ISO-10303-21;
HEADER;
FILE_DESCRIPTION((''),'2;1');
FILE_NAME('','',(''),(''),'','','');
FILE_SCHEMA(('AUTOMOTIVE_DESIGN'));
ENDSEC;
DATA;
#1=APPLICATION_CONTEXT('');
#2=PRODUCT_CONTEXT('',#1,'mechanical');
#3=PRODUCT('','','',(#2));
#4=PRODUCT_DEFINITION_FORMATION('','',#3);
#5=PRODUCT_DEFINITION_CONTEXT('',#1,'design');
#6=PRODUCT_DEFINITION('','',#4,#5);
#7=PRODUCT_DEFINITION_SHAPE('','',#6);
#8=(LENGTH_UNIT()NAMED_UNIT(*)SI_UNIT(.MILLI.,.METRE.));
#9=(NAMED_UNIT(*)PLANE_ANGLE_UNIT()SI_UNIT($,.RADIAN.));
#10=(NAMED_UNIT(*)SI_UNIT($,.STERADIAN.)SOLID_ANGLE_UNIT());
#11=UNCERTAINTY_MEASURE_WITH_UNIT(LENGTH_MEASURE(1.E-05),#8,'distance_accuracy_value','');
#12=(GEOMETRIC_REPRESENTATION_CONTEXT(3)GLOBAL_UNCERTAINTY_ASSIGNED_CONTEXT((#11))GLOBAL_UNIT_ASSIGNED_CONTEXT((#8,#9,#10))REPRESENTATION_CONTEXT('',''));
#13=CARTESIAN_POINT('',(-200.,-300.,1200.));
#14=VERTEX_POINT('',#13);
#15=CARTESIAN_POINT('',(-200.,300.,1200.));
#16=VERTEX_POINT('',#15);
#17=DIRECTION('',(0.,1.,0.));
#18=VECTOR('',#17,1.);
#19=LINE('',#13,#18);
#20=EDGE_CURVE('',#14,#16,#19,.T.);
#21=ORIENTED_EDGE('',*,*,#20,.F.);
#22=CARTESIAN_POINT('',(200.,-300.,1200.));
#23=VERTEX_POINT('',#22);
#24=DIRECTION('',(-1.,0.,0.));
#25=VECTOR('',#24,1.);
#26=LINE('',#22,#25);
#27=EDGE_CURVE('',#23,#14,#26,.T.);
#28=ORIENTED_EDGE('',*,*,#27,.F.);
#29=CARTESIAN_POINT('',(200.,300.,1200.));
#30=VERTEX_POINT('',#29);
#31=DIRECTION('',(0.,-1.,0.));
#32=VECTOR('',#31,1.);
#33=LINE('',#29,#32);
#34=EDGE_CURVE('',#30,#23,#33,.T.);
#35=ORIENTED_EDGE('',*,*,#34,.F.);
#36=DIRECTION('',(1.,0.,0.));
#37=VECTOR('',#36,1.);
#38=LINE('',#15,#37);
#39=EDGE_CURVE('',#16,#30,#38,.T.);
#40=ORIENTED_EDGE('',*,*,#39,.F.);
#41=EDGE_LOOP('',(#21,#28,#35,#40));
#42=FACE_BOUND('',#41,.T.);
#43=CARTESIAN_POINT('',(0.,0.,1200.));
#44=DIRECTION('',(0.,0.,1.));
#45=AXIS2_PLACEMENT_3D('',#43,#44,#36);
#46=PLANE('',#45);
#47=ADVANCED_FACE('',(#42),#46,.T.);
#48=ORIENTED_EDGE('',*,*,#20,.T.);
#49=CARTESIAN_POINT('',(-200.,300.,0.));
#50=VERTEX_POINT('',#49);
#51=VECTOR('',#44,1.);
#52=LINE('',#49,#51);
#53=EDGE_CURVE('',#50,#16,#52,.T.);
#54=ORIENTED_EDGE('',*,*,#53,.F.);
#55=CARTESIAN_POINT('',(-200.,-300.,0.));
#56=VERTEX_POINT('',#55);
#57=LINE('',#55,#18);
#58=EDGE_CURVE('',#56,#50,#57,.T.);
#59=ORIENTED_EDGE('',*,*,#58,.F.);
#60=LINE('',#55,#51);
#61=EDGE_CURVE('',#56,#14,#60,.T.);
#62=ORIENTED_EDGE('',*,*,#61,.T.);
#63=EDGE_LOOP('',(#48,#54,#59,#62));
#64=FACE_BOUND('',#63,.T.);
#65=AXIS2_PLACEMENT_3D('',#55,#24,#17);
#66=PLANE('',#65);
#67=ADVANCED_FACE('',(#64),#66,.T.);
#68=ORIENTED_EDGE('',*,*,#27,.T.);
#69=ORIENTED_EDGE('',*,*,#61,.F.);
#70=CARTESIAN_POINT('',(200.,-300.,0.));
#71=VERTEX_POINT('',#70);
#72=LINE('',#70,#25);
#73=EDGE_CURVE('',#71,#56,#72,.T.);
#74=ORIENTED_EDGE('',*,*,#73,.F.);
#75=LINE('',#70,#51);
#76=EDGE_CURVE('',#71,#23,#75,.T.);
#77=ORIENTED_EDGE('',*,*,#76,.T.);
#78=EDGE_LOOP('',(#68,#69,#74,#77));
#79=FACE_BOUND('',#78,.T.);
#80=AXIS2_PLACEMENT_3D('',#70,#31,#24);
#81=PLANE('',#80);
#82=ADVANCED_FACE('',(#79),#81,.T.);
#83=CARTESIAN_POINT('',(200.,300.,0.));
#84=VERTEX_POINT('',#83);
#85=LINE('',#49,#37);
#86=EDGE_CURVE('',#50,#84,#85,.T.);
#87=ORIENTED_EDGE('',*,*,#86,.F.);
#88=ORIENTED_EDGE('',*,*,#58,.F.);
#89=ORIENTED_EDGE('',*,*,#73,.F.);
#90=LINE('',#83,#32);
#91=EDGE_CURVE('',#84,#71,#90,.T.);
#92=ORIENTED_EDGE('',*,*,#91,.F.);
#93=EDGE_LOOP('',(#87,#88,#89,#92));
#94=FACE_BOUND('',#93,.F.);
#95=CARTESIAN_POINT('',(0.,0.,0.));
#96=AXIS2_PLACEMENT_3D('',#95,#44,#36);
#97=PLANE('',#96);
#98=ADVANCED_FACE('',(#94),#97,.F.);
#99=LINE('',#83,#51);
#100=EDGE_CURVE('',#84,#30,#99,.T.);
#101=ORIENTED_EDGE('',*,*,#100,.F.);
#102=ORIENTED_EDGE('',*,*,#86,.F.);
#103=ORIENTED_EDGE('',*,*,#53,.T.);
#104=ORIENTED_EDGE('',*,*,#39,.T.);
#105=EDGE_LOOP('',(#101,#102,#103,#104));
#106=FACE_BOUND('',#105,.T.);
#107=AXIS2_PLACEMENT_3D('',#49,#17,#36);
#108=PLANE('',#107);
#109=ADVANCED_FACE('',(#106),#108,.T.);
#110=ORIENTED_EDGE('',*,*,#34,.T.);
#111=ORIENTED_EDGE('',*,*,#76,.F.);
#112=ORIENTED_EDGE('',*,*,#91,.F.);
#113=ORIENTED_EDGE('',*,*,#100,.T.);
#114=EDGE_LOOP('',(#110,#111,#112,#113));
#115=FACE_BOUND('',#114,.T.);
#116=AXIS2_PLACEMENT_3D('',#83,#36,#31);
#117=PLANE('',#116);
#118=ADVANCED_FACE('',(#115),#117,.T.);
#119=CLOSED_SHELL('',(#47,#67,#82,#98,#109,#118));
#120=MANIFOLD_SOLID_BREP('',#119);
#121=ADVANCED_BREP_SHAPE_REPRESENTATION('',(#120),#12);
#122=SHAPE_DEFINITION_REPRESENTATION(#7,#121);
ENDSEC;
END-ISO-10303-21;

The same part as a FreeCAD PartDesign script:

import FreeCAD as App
import Part
import Sketcher

V = App.Vector
Q = App.Units.Quantity

doc = App.newDocument("Part")
body = doc.addObject("PartDesign::Body", "Body")

# Sketch on XY plane
sketch1 = doc.addObject("Sketcher::SketchObject", "Sketch")
body.addObject(sketch1)
sketch1.AttachmentSupport = (doc.XY_Plane, [""])
sketch1.MapMode = "FlatFace"
sketch1.addGeometry(Part.LineSegment(V(200, 300, 0), V(-200, 300, 0)), False)
sketch1.addGeometry(Part.LineSegment(V(-200, 300, 0), V(-200, -300, 0)), False)
sketch1.addGeometry(Part.LineSegment(V(-200, -300, 0), V(200, -300, 0)), False)
sketch1.addGeometry(Part.LineSegment(V(200, -300, 0), V(200, 300, 0)), False)
sketch1.addConstraint(Sketcher.Constraint("Coincident", 0, 2, 1, 1))
sketch1.addConstraint(Sketcher.Constraint("Coincident", 1, 2, 2, 1))
sketch1.addConstraint(Sketcher.Constraint("Coincident", 2, 2, 3, 1))
sketch1.addConstraint(Sketcher.Constraint("Coincident", 3, 2, 0, 1))
sketch1.addConstraint(Sketcher.Constraint("Horizontal", 0))
sketch1.addConstraint(Sketcher.Constraint("Vertical", 1))
sketch1.addConstraint(Sketcher.Constraint("Horizontal", 2))
sketch1.addConstraint(Sketcher.Constraint("Vertical", 3))
sketch1.addConstraint(Sketcher.Constraint("Symmetric", 0, 2, 2, 2, -1, 1))
sketch1.addConstraint(Sketcher.Constraint("DistanceX", 0, 2, 0, 1, Q("400 mm")))
sketch1.addConstraint(Sketcher.Constraint("DistanceY", 1, 2, 1, 1, Q("600 mm")))
pad1 = doc.addObject("PartDesign::Pad", "Pad")
body.addObject(pad1)
pad1.Profile = sketch1
pad1.Length = 1200

doc.recompute()
